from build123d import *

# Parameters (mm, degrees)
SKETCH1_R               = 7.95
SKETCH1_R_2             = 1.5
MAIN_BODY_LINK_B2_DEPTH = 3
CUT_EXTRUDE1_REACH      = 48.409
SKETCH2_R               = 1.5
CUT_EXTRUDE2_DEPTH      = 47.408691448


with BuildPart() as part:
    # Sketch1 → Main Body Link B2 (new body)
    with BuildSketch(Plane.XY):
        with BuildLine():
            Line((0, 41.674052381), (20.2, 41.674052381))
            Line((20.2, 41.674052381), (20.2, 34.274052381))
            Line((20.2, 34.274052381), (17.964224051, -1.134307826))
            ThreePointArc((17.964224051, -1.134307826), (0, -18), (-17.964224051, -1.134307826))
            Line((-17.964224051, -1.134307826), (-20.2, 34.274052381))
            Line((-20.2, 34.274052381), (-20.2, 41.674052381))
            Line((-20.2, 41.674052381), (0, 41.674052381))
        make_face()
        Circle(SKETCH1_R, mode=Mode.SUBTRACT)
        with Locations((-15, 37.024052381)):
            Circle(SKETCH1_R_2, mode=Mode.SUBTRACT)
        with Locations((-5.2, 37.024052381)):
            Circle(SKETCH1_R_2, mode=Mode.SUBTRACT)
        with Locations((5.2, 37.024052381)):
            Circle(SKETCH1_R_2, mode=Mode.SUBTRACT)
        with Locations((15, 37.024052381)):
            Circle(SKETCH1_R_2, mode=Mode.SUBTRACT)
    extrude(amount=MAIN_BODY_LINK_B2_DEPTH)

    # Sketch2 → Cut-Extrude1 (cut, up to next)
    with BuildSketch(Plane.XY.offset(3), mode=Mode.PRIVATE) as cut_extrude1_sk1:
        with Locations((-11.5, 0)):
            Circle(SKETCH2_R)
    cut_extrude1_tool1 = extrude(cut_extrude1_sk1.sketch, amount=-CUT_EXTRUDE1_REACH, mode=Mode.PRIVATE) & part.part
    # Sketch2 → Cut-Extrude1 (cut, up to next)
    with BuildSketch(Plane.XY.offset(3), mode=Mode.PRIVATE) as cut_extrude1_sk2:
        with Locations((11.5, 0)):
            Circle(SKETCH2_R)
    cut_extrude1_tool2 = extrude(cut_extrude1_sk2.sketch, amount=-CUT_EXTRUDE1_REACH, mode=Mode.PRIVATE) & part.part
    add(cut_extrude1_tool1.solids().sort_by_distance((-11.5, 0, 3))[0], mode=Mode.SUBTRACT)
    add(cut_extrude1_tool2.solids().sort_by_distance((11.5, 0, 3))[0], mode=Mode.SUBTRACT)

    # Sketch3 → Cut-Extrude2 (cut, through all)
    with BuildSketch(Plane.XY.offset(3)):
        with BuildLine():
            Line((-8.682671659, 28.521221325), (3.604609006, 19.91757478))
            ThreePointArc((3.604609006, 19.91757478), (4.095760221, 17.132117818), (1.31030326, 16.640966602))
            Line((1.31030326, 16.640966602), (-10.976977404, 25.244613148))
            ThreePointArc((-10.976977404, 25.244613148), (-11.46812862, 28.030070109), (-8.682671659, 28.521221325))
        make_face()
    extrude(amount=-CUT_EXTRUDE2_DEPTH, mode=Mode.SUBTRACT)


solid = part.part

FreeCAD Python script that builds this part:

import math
import FreeCAD as App
import Part
import Sketcher
Q = App.Units.Quantity

doc = App.newDocument("Part")
body = doc.addObject("PartDesign::Body", "Body")

sketch1 = doc.addObject("Sketcher::SketchObject", "Sketch")
body.addObject(sketch1)
sketch1.AttachmentSupport = (doc.XY_Plane, [""])
sketch1.MapMode = "FlatFace"
sketch1.addGeometry([
    Part.LineSegment(App.Vector(20.2, 34.3, 0), App.Vector(20.2, 41.7, 0)),
    Part.LineSegment(App.Vector(20.2, 41.7, 0), App.Vector(-20.2, 41.7, 0)),
    Part.LineSegment(App.Vector(-20.2, 41.7, 0), App.Vector(-20.2, 34.3, 0)),
    Part.LineSegment(App.Vector(-20.2, 34.3, 0), App.Vector(-18, -1.1, 0)),
    Part.ArcOfCircle(Part.Circle(App.Vector(0, 0, 0), App.Vector(0, 0, 1), 18), math.radians(-176), math.radians(-4)),
    Part.LineSegment(App.Vector(18, -1.1, 0), App.Vector(20.2, 34.3, 0)),
    Part.Circle(App.Vector(0, 0, 0), App.Vector(0, 0, 1), 8),
    Part.Circle(App.Vector(15, 37, 0), App.Vector(0, 0, 1), 1.5),
    Part.Circle(App.Vector(5.2, 37, 0), App.Vector(0, 0, 1), 1.5),
    Part.Circle(App.Vector(-5.2, 37, 0), App.Vector(0, 0, 1), 1.5),
    Part.Circle(App.Vector(-15, 37, 0), App.Vector(0, 0, 1), 1.5),
], False)
sketch1.addConstraint([
    Sketcher.Constraint("Coincident", 0, 2, 1, 1),
    Sketcher.Constraint("Coincident", 1, 2, 2, 1),
    Sketcher.Constraint("Coincident", 2, 2, 3, 1),
    Sketcher.Constraint("Tangent", 3, 2, 4, 1),
    Sketcher.Constraint("Tangent", 4, 2, 5, 1),
    Sketcher.Constraint("Coincident", 5, 2, 0, 1),
    Sketcher.Constraint("Vertical", 0),
    Sketcher.Constraint("Horizontal", 1),
    Sketcher.Constraint("Vertical", 2),
    Sketcher.Constraint("Coincident", 4, 3, -1, 1),
    Sketcher.Constraint("Coincident", 6, 3, -1, 1),
    Sketcher.Constraint("Equal", 7, 8),
    Sketcher.Constraint("Equal", 8, 9),
    Sketcher.Constraint("Equal", 9, 10),
    Sketcher.Constraint("Symmetric", 8, 3, 9, 3, -2),
    Sketcher.Constraint("Symmetric", 7, 3, 10, 3, -2),
    Sketcher.Constraint("Symmetric", 2, 2, 5, 2, -2),
    Sketcher.Constraint("Horizontal", 7, 3, 8, 3),
    Sketcher.Constraint("Diameter", 7, 3.0),
    Sketcher.Constraint("Radius", 4, 18.0),
    Sketcher.Constraint("Diameter", 6, 15.9),
    Sketcher.Constraint("DistanceX", 1, 2, 1, 1, 40.4),
    Sketcher.Constraint("DistanceY", 0, 1, 0, 2, 7.4),
    Sketcher.Constraint("DistanceX", -1, 1, 7, 3, 15.0),
    Sketcher.Constraint("DistanceX", 8, 3, 0, 2, 15.0),
    Sketcher.Constraint("DistanceY", 7, 3, 0, 2, 4.65),
    Sketcher.Constraint("DistanceY", 3, 2, 2, 2, 35.40836),
])
pad1 = doc.addObject("PartDesign::Pad", "Pad")
body.addObject(pad1)
pad1.Profile = sketch1
pad1.Length = 3

sketch2 = doc.addObject("Sketcher::SketchObject", "Sketch001")
body.addObject(sketch2)
sketch2.AttachmentSupport = (doc.XY_Plane, [""])
sketch2.MapMode = "FlatFace"
sketch2.AttachmentOffset = App.Placement(App.Vector(0, 0, 3), App.Rotation())
sketch2.addGeometry(Part.Circle(App.Vector(-11.5, 0, 0), App.Vector(0, 0, 1), 1.5), False)
sketch2.addConstraint([
    Sketcher.Constraint("PointOnObject", 0, 3, -1),
    Sketcher.Constraint("Diameter", 0, 3.0),
    Sketcher.Constraint("DistanceX", 0, 3, -1, 1, 11.5),
])
pocket1 = doc.addObject("PartDesign::Pocket", "Pocket")
body.addObject(pocket1)
pocket1.Profile = sketch2
pocket1.Type = "UpToFirst"

sketch3 = doc.addObject("Sketcher::SketchObject", "Sketch002")
body.addObject(sketch3)
sketch3.AttachmentSupport = (doc.XY_Plane, [""])
sketch3.MapMode = "FlatFace"
sketch3.AttachmentOffset = App.Placement(App.Vector(0, 0, 3), App.Rotation())
sketch3.addGeometry(Part.Circle(App.Vector(11.5, 0, 0), App.Vector(0, 0, 1), 1.5), False)
sketch3.addConstraint([
    Sketcher.Constraint("PointOnObject", 0, 3, -1),
    Sketcher.Constraint("Diameter", 0, 3.0),
    Sketcher.Constraint("DistanceX", -1, 1, 0, 3, 11.5),
])
pocket2 = doc.addObject("PartDesign::Pocket", "Pocket001")
body.addObject(pocket2)
pocket2.Profile = sketch3
pocket2.Type = "UpToFirst"

sketch4 = doc.addObject("Sketcher::SketchObject", "Sketch003")
body.addObject(sketch4)
sketch4.AttachmentSupport = (doc.XY_Plane, [""])
sketch4.MapMode = "FlatFace"
sketch4.AttachmentOffset = App.Placement(App.Vector(0, 0, 3), App.Rotation())
sketch4.addGeometry([
    Part.LineSegment(App.Vector(3.6, 19.9, 0), App.Vector(-8.7, 28.5, 0)),
    Part.ArcOfCircle(Part.Circle(App.Vector(-9.8, 26.9, 0), App.Vector(0, 0, 1), 2), math.radians(55), math.radians(235)),
    Part.LineSegment(App.Vector(-11, 25.2, 0), App.Vector(1.3, 16.6, 0)),
    Part.ArcOfCircle(Part.Circle(App.Vector(2.5, 18.3, 0), App.Vector(0, 0, 1), 2), math.radians(-125), math.radians(55)),
], False)
sketch4.addConstraint([
    Sketcher.Constraint("Tangent", 0, 2, 1, 1),
    Sketcher.Constraint("Tangent", 1, 2, 2, 1),
    Sketcher.Constraint("Tangent", 2, 2, 3, 1),
    Sketcher.Constraint("Tangent", 3, 2, 0, 1),
    Sketcher.Constraint("Equal", 1, 3),
    Sketcher.Constraint("Radius", 1, 2.0),
    Sketcher.Constraint("Angle", 0, Q("145 deg")),
    Sketcher.Constraint("Distance", 0, 15.0),
    Sketcher.Constraint("DistanceY", -1, 1, 3, 3, 18.279271),
    Sketcher.Constraint("DistanceX", 0, 2, -1, 1, 8.682672),
])
pocket3 = doc.addObject("PartDesign::Pocket", "Pocket002")
body.addObject(pocket3)
pocket3.Profile = sketch4
pocket3.Type = "ThroughAll"

doc.recompute()
